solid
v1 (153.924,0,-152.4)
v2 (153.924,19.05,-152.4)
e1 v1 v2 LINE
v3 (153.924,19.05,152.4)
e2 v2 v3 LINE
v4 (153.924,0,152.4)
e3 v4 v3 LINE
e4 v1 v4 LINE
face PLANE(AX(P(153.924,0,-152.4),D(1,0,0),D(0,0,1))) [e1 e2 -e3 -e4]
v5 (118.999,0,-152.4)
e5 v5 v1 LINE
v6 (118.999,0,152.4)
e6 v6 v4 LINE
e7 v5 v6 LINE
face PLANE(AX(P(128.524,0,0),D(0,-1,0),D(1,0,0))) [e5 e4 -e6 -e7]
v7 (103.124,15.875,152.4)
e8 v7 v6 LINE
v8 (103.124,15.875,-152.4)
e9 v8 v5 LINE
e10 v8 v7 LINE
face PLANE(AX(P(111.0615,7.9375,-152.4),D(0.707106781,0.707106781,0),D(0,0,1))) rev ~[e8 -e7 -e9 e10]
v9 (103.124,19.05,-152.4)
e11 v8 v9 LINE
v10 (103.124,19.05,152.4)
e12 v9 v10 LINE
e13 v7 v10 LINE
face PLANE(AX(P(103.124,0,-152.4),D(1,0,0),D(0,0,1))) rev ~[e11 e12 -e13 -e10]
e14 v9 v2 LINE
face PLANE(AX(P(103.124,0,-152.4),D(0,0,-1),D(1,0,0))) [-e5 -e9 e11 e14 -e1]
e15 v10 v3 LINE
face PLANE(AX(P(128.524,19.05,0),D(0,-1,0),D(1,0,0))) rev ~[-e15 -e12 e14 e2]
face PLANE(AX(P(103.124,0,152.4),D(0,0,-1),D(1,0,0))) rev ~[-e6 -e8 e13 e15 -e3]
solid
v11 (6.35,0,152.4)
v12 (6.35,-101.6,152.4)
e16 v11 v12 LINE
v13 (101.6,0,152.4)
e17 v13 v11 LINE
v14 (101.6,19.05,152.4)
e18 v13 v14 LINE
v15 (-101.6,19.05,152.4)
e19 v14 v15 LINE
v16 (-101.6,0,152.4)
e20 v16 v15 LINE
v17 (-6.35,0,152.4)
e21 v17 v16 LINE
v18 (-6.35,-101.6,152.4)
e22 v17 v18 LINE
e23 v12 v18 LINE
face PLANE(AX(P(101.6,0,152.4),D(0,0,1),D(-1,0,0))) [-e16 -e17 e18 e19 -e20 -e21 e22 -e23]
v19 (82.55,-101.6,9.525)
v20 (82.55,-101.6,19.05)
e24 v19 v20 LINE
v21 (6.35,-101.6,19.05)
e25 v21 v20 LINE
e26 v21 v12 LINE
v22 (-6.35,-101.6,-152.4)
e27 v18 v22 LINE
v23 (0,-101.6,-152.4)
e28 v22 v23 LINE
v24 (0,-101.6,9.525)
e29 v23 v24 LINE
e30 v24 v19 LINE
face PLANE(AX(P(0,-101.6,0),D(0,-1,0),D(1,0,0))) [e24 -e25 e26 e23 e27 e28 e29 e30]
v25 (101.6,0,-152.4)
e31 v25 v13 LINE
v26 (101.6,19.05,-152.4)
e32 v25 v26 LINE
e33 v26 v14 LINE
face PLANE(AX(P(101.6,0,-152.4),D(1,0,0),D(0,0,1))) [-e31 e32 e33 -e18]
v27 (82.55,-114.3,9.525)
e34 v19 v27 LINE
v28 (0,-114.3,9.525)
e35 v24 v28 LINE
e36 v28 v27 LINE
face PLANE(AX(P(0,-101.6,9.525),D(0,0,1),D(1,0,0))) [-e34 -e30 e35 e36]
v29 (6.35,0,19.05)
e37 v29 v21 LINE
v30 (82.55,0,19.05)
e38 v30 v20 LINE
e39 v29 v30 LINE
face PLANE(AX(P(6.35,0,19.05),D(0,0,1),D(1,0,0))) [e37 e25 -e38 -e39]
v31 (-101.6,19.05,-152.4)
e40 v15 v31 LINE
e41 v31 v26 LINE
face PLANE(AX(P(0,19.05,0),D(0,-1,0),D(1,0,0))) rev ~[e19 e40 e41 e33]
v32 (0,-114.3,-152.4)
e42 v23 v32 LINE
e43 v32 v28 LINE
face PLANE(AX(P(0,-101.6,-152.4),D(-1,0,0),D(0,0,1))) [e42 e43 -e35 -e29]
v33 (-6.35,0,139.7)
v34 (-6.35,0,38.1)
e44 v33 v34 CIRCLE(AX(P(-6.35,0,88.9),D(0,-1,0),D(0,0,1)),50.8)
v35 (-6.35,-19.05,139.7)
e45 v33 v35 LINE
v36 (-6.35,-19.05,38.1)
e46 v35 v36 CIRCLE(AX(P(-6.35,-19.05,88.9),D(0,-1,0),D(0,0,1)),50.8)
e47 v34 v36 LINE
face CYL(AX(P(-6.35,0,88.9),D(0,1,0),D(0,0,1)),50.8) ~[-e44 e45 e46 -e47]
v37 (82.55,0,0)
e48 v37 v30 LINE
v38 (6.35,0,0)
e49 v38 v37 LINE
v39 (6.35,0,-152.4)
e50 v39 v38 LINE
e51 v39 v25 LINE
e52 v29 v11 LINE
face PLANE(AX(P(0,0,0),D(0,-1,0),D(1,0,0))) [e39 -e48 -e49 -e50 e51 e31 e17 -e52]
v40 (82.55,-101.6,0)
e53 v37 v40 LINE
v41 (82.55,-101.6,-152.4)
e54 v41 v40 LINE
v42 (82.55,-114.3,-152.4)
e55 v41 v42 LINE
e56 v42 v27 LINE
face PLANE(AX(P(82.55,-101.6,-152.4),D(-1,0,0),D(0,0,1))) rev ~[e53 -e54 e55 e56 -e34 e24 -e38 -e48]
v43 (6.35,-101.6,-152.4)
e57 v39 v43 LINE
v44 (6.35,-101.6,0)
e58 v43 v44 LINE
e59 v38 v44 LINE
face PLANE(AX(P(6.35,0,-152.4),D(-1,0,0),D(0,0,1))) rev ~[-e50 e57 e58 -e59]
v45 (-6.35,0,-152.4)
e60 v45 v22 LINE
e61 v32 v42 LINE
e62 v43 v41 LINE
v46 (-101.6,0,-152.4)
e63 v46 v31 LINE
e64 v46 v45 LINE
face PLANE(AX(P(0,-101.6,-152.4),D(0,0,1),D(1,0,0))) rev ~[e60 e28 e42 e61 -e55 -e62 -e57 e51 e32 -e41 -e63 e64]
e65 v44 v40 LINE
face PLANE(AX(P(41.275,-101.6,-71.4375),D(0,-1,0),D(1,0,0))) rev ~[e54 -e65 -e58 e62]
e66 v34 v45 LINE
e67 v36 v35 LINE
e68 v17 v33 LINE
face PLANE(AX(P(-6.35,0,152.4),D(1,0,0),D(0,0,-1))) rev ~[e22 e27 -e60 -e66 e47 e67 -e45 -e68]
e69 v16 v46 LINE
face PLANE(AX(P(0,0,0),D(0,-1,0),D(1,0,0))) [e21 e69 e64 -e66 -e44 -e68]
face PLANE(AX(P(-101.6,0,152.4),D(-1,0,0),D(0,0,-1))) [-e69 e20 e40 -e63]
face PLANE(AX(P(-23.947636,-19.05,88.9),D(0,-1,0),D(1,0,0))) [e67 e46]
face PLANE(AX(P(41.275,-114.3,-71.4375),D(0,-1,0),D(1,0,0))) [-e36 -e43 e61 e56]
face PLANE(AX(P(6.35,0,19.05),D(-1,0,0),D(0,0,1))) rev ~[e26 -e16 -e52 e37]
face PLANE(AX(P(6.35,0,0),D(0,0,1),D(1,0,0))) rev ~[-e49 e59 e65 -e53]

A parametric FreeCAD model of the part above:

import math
import FreeCAD as App
import Part
import Sketcher

V = App.Vector
Q = App.Units.Quantity


def edges_at(feature, points):
    """Names of the edges that pass closest to the given points."""
    edges = feature.Shape.Edges
    near = lambda p: min(range(len(edges)), key=lambda i: edges[i].distToShape(Part.Vertex(*p))[0])
    return sorted({f"Edge{near(p) + 1}" for p in points})

doc = App.newDocument("Part")
body = doc.addObject("PartDesign::Body", "Body")

sketch1 = doc.addObject("Sketcher::SketchObject", "Sketch")
body.addObject(sketch1)
sketch1.AttachmentSupport = (doc.XZ_Plane, [""])
sketch1.MapMode = "FlatFace"
sketch1.addGeometry([
    Part.LineSegment(V(103, 152, 0), V(103, -152, 0)),
    Part.LineSegment(V(103, -152, 0), V(154, -152, 0)),
    Part.LineSegment(V(154, -152, 0), V(154, 152, 0)),
    Part.LineSegment(V(154, 152, 0), V(103, 152, 0)),
], False)
sketch1.addConstraint([
    Sketcher.Constraint("Coincident", 0, 2, 1, 1),
    Sketcher.Constraint("Coincident", 1, 2, 2, 1),
    Sketcher.Constraint("Coincident", 2, 2, 3, 1),
    Sketcher.Constraint("Coincident", 3, 2, 0, 1),
    Sketcher.Constraint("Vertical", 0),
    Sketcher.Constraint("Horizontal", 1),
    Sketcher.Constraint("Vertical", 2),
    Sketcher.Constraint("Horizontal", 3),
    Sketcher.Constraint("DistanceX", 1, 1, 1, 2, Q("2 in")),
    Sketcher.Constraint("DistanceY", 0, 2, 0, 1, Q("12 in")),
    Sketcher.Constraint("DistanceY", 0, 2, -1, 1, Q("6 in")),
    Sketcher.Constraint("DistanceX", -1, 1, 0, 2, Q("4.06 in")),
])
pad1 = doc.addObject("PartDesign::Pad", "Pad")
body.addObject(pad1)
pad1.Profile = sketch1
pad1.Length = Q("0.75 in")
pad1.Reversed = True
doc.recompute()

chamfer = doc.addObject("PartDesign::Chamfer", "Chamfer")
body.addObject(chamfer)
chamfer.Base = (pad1, edges_at(pad1, [(103.124, 0, 0)]))
chamfer.Size = Q("0.625 in")
body2 = doc.addObject("PartDesign::Body", "Body001")

sketch2 = doc.addObject("Sketcher::SketchObject", "Sketch001")
body2.addObject(sketch2)
sketch2.AttachmentSupport = (doc.getObject("XZ_Plane001"), [""])
sketch2.MapMode = "FlatFace"
sketch2.addGeometry([
    Part.LineSegment(V(102, -152, 0), V(102, 152, 0)),
    Part.LineSegment(V(102, 152, 0), V(-102, 152, 0)),
    Part.LineSegment(V(-102, 152, 0), V(-102, -152, 0)),
    Part.LineSegment(V(-102, -152, 0), V(102, -152, 0)),
], False)
sketch2.addConstraint([
    Sketcher.Constraint("Coincident", 0, 2, 1, 1),
    Sketcher.Constraint("Coincident", 1, 2, 2, 1),
    Sketcher.Constraint("Coincident", 2, 2, 3, 1),
    Sketcher.Constraint("Coincident", 3, 2, 0, 1),
    Sketcher.Constraint("Vertical", 0),
    Sketcher.Constraint("Horizontal", 1),
    Sketcher.Constraint("Vertical", 2),
    Sketcher.Constraint("Horizontal", 3),
    Sketcher.Constraint("Symmetric", 0, 2, 2, 2, -1, 1),
    Sketcher.Constraint("DistanceX", 1, 2, 1, 1, Q("8 in")),
    Sketcher.Constraint("DistanceY", 0, 1, 0, 2, Q("12 in")),
])
pad2 = doc.addObject("PartDesign::Pad", "Pad001")
body2.addObject(pad2)
pad2.Profile = sketch2
pad2.Length = Q("0.75 in")
pad2.Reversed = True

sketch3 = doc.addObject("Sketcher::SketchObject", "Sketch002")
body2.addObject(sketch3)
sketch3.AttachmentSupport = (doc.getObject("XZ_Plane001"), [""])
sketch3.MapMode = "FlatFace"
sketch3.addGeometry([
    Part.LineSegment(V(6, 152, 0), V(-6, 152, 0)),
    Part.LineSegment(V(-6, 152, 0), V(-6, -152, 0)),
    Part.LineSegment(V(-6, -152, 0), V(6, -152, 0)),
    Part.LineSegment(V(6, -152, 0), V(6, 0, 0)),
    Part.LineSegment(V(6, 0, 0), V(83, 0, 0)),
    Part.LineSegment(V(83, 0, 0), V(83, 19, 0)),
    Part.LineSegment(V(83, 19, 0), V(6, 19, 0)),
    Part.LineSegment(V(6, 19, 0), V(6, 152, 0)),
], False)
sketch3.addConstraint([
    Sketcher.Constraint("Coincident", 0, 2, 1, 1),
    Sketcher.Constraint("Coincident", 1, 2, 2, 1),
    Sketcher.Constraint("Coincident", 2, 2, 3, 1),
    Sketcher.Constraint("Coincident", 3, 2, 4, 1),
    Sketcher.Constraint("Coincident", 4, 2, 5, 1),
    Sketcher.Constraint("Coincident", 5, 2, 6, 1),
    Sketcher.Constraint("Coincident", 6, 2, 7, 1),
    Sketcher.Constraint("Coincident", 7, 2, 0, 1),
    Sketcher.Constraint("Horizontal", 0),
    Sketcher.Constraint("Vertical", 1),
    Sketcher.Constraint("Horizontal", 2),
    Sketcher.Constraint("Vertical", 3),
    Sketcher.Constraint("Horizontal", 4),
    Sketcher.Constraint("Vertical", 5),
    Sketcher.Constraint("Horizontal", 6),
    Sketcher.Constraint("Vertical", 7),
    Sketcher.Constraint("Symmetric", 0, 2, 2, 2, -1, 1),
    Sketcher.Constraint("PointOnObject", 3, 2, -1),
    Sketcher.Constraint("Vertical", 3, 2, 6, 2),
    Sketcher.Constraint("DistanceX", 4, 1, 4, 2, Q("3 in")),
    Sketcher.Constraint("DistanceY", 1, 2, 1, 1, Q("12 in")),
    Sketcher.Constraint("DistanceX", 0, 2, 0, 1, Q("0.5 in")),
    Sketcher.Constraint("DistanceY", 5, 1, 5, 2, Q("0.75 in")),
])
pad3 = doc.addObject("PartDesign::Pad", "Pad002")
body2.addObject(pad3)
pad3.Profile = sketch3
pad3.Length = Q("4 in")

sketch4 = doc.addObject("Sketcher::SketchObject", "Sketch003")
body2.addObject(sketch4)
sketch4.AttachmentSupport = (doc.getObject("XZ_Plane001"), [""])
sketch4.MapMode = "FlatFace"
sketch4.addGeometry([
    Part.LineSegment(V(-6, 38, 0), V(-6, 140, 0)),
    Part.ArcOfCircle(Part.Circle(V(-6, 89, 0), V(0, 0, 1), 51), math.radians(90), math.radians(270)),
], False)
sketch4.addConstraint([
    Sketcher.Constraint("Coincident", 0, 1, 1, 2),
    Sketcher.Constraint("Coincident", 1, 1, 0, 2),
    Sketcher.Constraint("Vertical", 0),
    Sketcher.Constraint("Vertical", 1, 3, 0, 1),
    Sketcher.Constraint("Radius", 1, Q("2 in")),
    Sketcher.Constraint("DistanceY", -1, 1, 1, 3, Q("3.5 in")),
    Sketcher.Constraint("DistanceX", 1, 3, -1, 1, Q("0.25 in")),
])
pad4 = doc.addObject("PartDesign::Pad", "Pad003")
body2.addObject(pad4)
pad4.Profile = sketch4
pad4.Length = Q("0.75 in")

sketch5 = doc.addObject("Sketcher::SketchObject", "Sketch004")
body2.addObject(sketch5)
sketch5.AttachmentSupport = (doc.getObject("XZ_Plane001"), [""])
sketch5.MapMode = "FlatFace"
sketch5.AttachmentOffset = App.Placement(V(0, 0, 4 * 25.4), App.Rotation())
sketch5.addGeometry([
    Part.LineSegment(V(0, 10, 0), V(0, -152, 0)),
    Part.LineSegment(V(0, -152, 0), V(83, -152, 0)),
    Part.LineSegment(V(83, -152, 0), V(83, 10, 0)),
    Part.LineSegment(V(83, 10, 0), V(0, 10, 0)),
], False)
sketch5.addConstraint([
    Sketcher.Constraint("Coincident", 0, 2, 1, 1),
    Sketcher.Constraint("Coincident", 1, 2, 2, 1),
    Sketcher.Constraint("Coincident", 2, 2, 3, 1),
    Sketcher.Constraint("Coincident", 3, 2, 0, 1),
    Sketcher.Constraint("Vertical", 0),
    Sketcher.Constraint("Horizontal", 1),
    Sketcher.Constraint("Vertical", 2),
    Sketcher.Constraint("Horizontal", 3),
    Sketcher.Constraint("PointOnObject", 0, 2, -2),
    Sketcher.Constraint("DistanceY", 0, 2, -1, 1, Q("6 in")),
    Sketcher.Constraint("DistanceX", 1, 1, 1, 2, Q("3.25 in")),
    Sketcher.Constraint("DistanceY", 0, 2, 0, 1, Q("6.375 in")),
])
pad5 = doc.addObject("PartDesign::Pad", "Pad004")
body2.addObject(pad5)
pad5.Profile = sketch5
pad5.Length = Q("0.5 in")

doc.recompute()
